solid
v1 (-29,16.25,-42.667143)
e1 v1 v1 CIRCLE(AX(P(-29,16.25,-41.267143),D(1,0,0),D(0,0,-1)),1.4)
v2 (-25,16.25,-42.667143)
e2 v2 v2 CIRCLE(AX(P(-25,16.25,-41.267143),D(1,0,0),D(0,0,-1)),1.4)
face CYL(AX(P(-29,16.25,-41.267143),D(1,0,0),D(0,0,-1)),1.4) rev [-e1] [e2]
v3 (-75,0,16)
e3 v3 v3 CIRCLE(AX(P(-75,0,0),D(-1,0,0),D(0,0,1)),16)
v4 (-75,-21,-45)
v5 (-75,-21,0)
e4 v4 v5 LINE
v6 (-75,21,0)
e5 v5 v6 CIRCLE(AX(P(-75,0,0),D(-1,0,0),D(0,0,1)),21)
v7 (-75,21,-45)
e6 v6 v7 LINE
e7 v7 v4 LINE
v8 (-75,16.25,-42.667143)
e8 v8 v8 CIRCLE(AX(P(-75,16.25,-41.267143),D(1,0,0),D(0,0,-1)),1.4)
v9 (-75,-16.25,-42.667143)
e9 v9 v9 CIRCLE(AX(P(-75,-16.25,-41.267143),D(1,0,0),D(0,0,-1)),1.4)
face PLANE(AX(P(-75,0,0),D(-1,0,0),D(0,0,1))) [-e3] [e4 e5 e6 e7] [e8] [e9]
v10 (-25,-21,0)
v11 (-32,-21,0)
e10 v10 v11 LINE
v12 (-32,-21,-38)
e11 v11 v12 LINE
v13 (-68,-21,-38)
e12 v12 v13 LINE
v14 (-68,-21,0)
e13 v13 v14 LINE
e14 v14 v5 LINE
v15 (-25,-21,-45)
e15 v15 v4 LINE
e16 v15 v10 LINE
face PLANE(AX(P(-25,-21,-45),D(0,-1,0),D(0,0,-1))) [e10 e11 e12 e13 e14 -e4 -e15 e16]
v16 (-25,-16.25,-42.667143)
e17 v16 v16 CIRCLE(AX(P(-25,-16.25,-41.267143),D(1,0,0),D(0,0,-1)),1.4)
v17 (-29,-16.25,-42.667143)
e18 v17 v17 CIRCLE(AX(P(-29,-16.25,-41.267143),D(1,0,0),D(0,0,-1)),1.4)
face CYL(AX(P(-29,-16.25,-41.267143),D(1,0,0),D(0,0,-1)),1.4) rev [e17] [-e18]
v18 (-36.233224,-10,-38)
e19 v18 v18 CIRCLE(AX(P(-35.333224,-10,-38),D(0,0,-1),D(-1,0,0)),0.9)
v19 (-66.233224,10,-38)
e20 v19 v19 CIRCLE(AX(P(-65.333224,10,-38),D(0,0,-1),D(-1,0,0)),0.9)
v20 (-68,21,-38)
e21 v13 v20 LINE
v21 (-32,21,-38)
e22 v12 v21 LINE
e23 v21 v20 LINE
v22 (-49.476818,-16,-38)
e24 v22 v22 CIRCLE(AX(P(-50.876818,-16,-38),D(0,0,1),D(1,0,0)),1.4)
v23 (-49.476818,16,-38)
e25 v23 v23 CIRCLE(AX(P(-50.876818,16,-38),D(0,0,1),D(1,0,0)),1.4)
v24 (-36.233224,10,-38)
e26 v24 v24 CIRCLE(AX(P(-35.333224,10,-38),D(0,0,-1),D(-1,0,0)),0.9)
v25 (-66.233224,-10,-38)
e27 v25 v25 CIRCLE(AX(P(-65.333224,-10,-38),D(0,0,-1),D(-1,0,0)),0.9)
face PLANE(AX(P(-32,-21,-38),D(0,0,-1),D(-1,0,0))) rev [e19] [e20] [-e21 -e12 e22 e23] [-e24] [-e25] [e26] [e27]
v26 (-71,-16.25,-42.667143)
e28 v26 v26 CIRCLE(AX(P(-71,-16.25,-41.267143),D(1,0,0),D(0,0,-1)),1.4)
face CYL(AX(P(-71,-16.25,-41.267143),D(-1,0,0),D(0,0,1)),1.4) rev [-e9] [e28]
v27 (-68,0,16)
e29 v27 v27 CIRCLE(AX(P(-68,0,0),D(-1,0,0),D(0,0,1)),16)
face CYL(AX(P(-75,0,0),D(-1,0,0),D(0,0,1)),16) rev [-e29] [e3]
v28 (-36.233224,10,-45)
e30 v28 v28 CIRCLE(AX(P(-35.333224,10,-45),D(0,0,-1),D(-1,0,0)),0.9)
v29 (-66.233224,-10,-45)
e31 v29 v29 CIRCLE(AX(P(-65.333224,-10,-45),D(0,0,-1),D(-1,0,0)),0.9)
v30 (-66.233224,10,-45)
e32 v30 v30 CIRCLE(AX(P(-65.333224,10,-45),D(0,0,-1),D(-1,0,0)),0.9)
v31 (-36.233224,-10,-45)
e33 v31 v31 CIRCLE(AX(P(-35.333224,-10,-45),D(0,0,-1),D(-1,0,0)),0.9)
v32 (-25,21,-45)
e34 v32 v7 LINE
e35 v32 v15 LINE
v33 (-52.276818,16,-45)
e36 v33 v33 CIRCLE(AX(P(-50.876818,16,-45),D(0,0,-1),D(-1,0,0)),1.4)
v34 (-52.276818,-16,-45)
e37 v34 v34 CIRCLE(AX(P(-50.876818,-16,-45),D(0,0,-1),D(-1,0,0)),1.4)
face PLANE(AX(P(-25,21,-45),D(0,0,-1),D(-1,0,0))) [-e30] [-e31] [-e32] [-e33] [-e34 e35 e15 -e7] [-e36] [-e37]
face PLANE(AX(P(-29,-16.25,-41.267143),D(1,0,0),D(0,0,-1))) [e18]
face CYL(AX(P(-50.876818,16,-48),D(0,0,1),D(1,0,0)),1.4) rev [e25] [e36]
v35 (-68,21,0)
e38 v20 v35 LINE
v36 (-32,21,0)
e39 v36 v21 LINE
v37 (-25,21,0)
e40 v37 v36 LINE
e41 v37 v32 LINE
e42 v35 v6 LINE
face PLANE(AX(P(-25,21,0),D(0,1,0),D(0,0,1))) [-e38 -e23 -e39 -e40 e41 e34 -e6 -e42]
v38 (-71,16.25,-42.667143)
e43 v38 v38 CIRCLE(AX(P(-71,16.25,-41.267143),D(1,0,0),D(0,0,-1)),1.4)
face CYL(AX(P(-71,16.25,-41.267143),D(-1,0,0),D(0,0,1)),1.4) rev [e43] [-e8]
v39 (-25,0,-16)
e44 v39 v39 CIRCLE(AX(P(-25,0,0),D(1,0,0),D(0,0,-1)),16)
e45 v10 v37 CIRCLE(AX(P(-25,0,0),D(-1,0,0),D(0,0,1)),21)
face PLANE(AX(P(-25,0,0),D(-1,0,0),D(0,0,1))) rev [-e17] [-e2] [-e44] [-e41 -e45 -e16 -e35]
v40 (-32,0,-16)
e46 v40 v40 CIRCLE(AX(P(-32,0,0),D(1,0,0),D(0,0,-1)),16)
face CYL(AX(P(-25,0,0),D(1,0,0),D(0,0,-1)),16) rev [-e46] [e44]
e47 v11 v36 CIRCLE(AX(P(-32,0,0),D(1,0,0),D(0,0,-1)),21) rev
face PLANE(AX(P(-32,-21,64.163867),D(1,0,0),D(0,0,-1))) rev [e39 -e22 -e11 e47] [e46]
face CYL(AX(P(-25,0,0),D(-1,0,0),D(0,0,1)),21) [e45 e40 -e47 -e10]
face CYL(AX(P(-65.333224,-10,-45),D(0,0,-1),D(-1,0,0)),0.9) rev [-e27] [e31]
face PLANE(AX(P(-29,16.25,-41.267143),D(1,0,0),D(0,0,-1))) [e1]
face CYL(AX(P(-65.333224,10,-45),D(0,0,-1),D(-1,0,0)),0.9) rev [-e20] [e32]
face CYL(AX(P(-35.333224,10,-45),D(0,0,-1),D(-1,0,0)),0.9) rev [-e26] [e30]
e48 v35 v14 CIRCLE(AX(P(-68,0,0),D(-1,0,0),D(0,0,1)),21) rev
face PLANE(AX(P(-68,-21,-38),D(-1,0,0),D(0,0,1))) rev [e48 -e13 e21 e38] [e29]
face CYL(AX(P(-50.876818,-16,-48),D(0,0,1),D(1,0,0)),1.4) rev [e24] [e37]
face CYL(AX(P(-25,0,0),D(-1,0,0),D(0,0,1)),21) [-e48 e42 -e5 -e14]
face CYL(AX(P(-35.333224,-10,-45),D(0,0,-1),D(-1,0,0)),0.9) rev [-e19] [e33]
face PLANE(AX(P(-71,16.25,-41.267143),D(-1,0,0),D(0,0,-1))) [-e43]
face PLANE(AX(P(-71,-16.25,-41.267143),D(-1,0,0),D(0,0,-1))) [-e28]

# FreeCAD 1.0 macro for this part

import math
import FreeCAD as App
import Part
import Sketcher
Q = App.Units.Quantity


def add_polygon(sketch, points):
    """Adds a closed chain of lines whose ends are joined by coincident constraints."""
    first, n = sketch.GeometryCount, len(points)
    for a, b in zip(points, points[1:] + points[:1]):
        sketch.addGeometry(Part.LineSegment(App.Vector(*a, 0), App.Vector(*b, 0)), False)
    for i in range(n):
        sketch.addConstraint(Sketcher.Constraint("Coincident", first + i, 2, first + (i + 1) % n, 1))

doc = App.newDocument("Part")
body = doc.addObject("PartDesign::Body", "Body")

sketch1 = body.newObject("Sketcher::SketchObject", "Sketch")
sketch1.AttachmentSupport = (doc.getObject("YZ_Plane"), [""])
sketch1.MapMode = "FlatFace"
sketch1.AttachmentOffset = App.Placement(App.Vector(0, 0, -75), App.Rotation())
sketch1.addGeometry(Part.LineSegment(App.Vector(21, 0, 0), App.Vector(21, -45, 0)), False)
sketch1.addGeometry(Part.LineSegment(App.Vector(21, -45, 0), App.Vector(-21, -45, 0)), False)
sketch1.addGeometry(Part.LineSegment(App.Vector(-21, -45, 0), App.Vector(-21, 0, 0)), False)
sketch1.addGeometry(Part.ArcOfCircle(Part.Circle(App.Vector(0, 0, 0), App.Vector(0, 0, 1), 21), math.radians(0), math.radians(180)), False)
sketch1.addConstraint(Sketcher.Constraint("Coincident", 0, 2, 1, 1))
sketch1.addConstraint(Sketcher.Constraint("Coincident", 1, 2, 2, 1))
sketch1.addConstraint(Sketcher.Constraint("Tangent", 2, 2, 3, 2))
sketch1.addConstraint(Sketcher.Constraint("Tangent", 3, 1, 0, 1))
sketch1.addConstraint(Sketcher.Constraint("Vertical", 0))
sketch1.addConstraint(Sketcher.Constraint("Horizontal", 1))
sketch1.addConstraint(Sketcher.Constraint("Vertical", 2))
sketch1.addConstraint(Sketcher.Constraint("Coincident", 3, 3, -1, 1))
sketch1.addConstraint(Sketcher.Constraint("Radius", 3, Q("21 mm")))
sketch1.addConstraint(Sketcher.Constraint("DistanceY", 0, 2, 0, 1, Q("45 mm")))
pad1 = body.newObject("PartDesign::Pad", "Pad")
pad1.Profile = sketch1
pad1.Length = 50

sketch2 = body.newObject("Sketcher::SketchObject", "Sketch001")
sketch2.AttachmentSupport = (doc.getObject("XZ_Plane"), [""])
sketch2.MapMode = "FlatFace"
sketch2.AttachmentOffset = App.Placement(App.Vector(0, 0, -21), App.Rotation())
add_polygon(sketch2, [(-32, 64.163867), (-32, -38), (-68, -38), (-68, 64.163867)])
sketch2.addConstraint(Sketcher.Constraint("Vertical", 0))
sketch2.addConstraint(Sketcher.Constraint("Horizontal", 1))
sketch2.addConstraint(Sketcher.Constraint("Vertical", 2))
sketch2.addConstraint(Sketcher.Constraint("Horizontal", 3))
sketch2.addConstraint(Sketcher.Constraint("DistanceX", 1, 2, 1, 1, Q("36 mm")))
sketch2.addConstraint(Sketcher.Constraint("DistanceX", 0, 2, -1, 1, Q("32 mm")))
sketch2.addConstraint(Sketcher.Constraint("DistanceY", 0, 2, -1, 1, Q("38 mm")))
sketch2.addConstraint(Sketcher.Constraint("DistanceY", 0, 2, 0, 1, Q("102.163867 mm")))
pocket1 = body.newObject("PartDesign::Pocket", "Pocket")
pocket1.Profile = sketch2
pocket1.Type = "ThroughAll"
pocket1.Reversed = True

sketch3 = body.newObject("Sketcher::SketchObject", "Sketch002")
sketch3.AttachmentSupport = (doc.getObject("XY_Plane"), [""])
sketch3.MapMode = "FlatFace"
sketch3.AttachmentOffset = App.Placement(App.Vector(0, 0, -45), App.Rotation())
sketch3.addGeometry(Part.Circle(App.Vector(-35.333224, 10, 0), App.Vector(0, 0, 1), 0.9), False)
sketch3.addGeometry(Part.Circle(App.Vector(-65.333224, 10, 0), App.Vector(0, 0, 1), 0.9), False)
sketch3.addGeometry(Part.Circle(App.Vector(-35.333224, -10, 0), App.Vector(0, 0, 1), 0.9), False)
sketch3.addGeometry(Part.Circle(App.Vector(-65.333224, -10, 0), App.Vector(0, 0, 1), 0.9), False)
sketch3.addConstraint(Sketcher.Constraint("Equal", 0, 1))
sketch3.addConstraint(Sketcher.Constraint("Equal", 1, 2))
sketch3.addConstraint(Sketcher.Constraint("Equal", 2, 3))
sketch3.addConstraint(Sketcher.Constraint("Symmetric", 0, 3, 2, 3, -1))
sketch3.addConstraint(Sketcher.Constraint("Symmetric", 1, 3, 3, 3, -1))
sketch3.addConstraint(Sketcher.Constraint("Horizontal", 0, 3, 1, 3))
sketch3.addConstraint(Sketcher.Constraint("Diameter", 0, Q("1.8 mm")))
sketch3.addConstraint(Sketcher.Constraint("DistanceY", -1, 1, 0, 3, Q("10 mm")))
sketch3.addConstraint(Sketcher.Constraint("DistanceX", 1, 3, 0, 3, Q("30 mm")))
sketch3.addConstraint(Sketcher.Constraint("DistanceX", 0, 3, -1, 1, Q("35.333224 mm")))
doc.recompute()
hole = body.newObject("PartDesign::Hole", "Hole")
hole.Profile = sketch3
hole.ThreadType = "None"
hole.Diameter = 1.8
hole.DepthType = "Dimension"
hole.Depth = 7
hole.DrillPoint = "Flat"
hole.Reversed = True

sketch4 = body.newObject("Sketcher::SketchObject", "Sketch003")
sketch4.AttachmentSupport = (doc.getObject("YZ_Plane"), [""])
sketch4.MapMode = "FlatFace"
sketch4.AttachmentOffset = App.Placement(App.Vector(0, 0, -25), App.Rotation())
sketch4.addGeometry(Part.Circle(App.Vector(0, 0, 0), App.Vector(0, 0, 1), 16), False)
sketch4.addConstraint(Sketcher.Constraint("Coincident", 0, 3, -1, 1))
sketch4.addConstraint(Sketcher.Constraint("Diameter", 0, Q("32 mm")))
doc.recompute()
hole2 = body.newObject("PartDesign::Hole", "Hole001")
hole2.Profile = sketch4
hole2.ThreadType = "None"
hole2.Diameter = 32
hole2.DepthType = "Dimension"
hole2.Depth = 7
hole2.DrillPoint = "Flat"

sketch5 = body.newObject("Sketcher::SketchObject", "Sketch004")
sketch5.AttachmentSupport = (doc.getObject("YZ_Plane"), [""])
sketch5.MapMode = "FlatFace"
sketch5.AttachmentOffset = App.Placement(App.Vector(0, 0, -75), App.Rotation())
sketch5.addGeometry(Part.Circle(App.Vector(0, 0, 0), App.Vector(0, 0, 1), 16), False)
sketch5.addConstraint(Sketcher.Constraint("Coincident", 0, 3, -1, 1))
sketch5.addConstraint(Sketcher.Constraint("Diameter", 0, Q("32 mm")))
doc.recompute()
hole3 = body.newObject("PartDesign::Hole", "Hole002")
hole3.Profile = sketch5
hole3.ThreadType = "None"
hole3.Diameter = 32
hole3.DepthType = "Dimension"
hole3.Depth = 7
hole3.DrillPoint = "Flat"
hole3.Reversed = True

sketch6 = body.newObject("Sketcher::SketchObject", "Sketch005")
sketch6.AttachmentSupport = (doc.getObject("XY_Plane"), [""])
sketch6.MapMode = "FlatFace"
sketch6.AttachmentOffset = App.Placement(App.Vector(0, 0, -38), App.Rotation())
sketch6.addGeometry(Part.Circle(App.Vector(-50.876818, -16, 0), App.Vector(0, 0, 1), 1.4), False)
sketch6.addGeometry(Part.Circle(App.Vector(-50.876818, 16, 0), App.Vector(0, 0, 1), 1.4), False)
sketch6.addConstraint(Sketcher.Constraint("Equal", 0, 1))
sketch6.addConstraint(Sketcher.Constraint("Symmetric", 0, 3, 1, 3, -1))
sketch6.addConstraint(Sketcher.Constraint("Diameter", 0, Q("2.8 mm")))
sketch6.addConstraint(Sketcher.Constraint("DistanceY", 0, 3, -1, 1, Q("16 mm")))
sketch6.addConstraint(Sketcher.Constraint("DistanceX", 0, 3, -1, 1, Q("50.876818 mm")))
pocket2 = body.newObject("PartDesign::Pocket", "Pocket001")
pocket2.Profile = sketch6
pocket2.Length = 10

sketch7 = body.newObject("Sketcher::SketchObject", "Sketch006")
sketch7.AttachmentSupport = (doc.getObject("YZ_Plane"), [""])
sketch7.MapMode = "FlatFace"
sketch7.AttachmentOffset = App.Placement(App.Vector(0, 0, -25), App.Rotation())
sketch7.addGeometry(Part.Circle(App.Vector(16.25, -41.267143, 0), App.Vector(0, 0, 1), 1.4), False)
sketch7.addGeometry(Part.Circle(App.Vector(-16.25, -41.267143, 0), App.Vector(0, 0, 1), 1.4), False)
sketch7.addConstraint(Sketcher.Constraint("Equal", 0, 1))
sketch7.addConstraint(Sketcher.Constraint("Symmetric", 0, 3, 1, 3, -2))
sketch7.addConstraint(Sketcher.Constraint("Diameter", 0, Q("2.8 mm")))
sketch7.addConstraint(Sketcher.Constraint("DistanceX", 1, 3, 0, 3, Q("32.5 mm")))
sketch7.addConstraint(Sketcher.Constraint("DistanceY", 0, 3, -1, 1, Q("41.267143 mm")))
pocket3 = body.newObject("PartDesign::Pocket", "Pocket002")
pocket3.Profile = sketch7
pocket3.Length = 4
doc.recompute()

datumplane = body.newObject("PartDesign::Plane", "DatumPlane")
datumplane.AttachmentSupport = (doc.getObject("YZ_Plane"), [""])
datumplane.MapMode = "FlatFace"
datumplane.AttachmentOffset = App.Placement(App.Vector(0, 0, -50), App.Rotation())
mirrored = body.newObject("PartDesign::Mirrored", "Mirrored")
mirrored.Originals = [pocket3]
mirrored.MirrorPlane = (datumplane, [""])
body.Tip = mirrored

doc.recompute()
